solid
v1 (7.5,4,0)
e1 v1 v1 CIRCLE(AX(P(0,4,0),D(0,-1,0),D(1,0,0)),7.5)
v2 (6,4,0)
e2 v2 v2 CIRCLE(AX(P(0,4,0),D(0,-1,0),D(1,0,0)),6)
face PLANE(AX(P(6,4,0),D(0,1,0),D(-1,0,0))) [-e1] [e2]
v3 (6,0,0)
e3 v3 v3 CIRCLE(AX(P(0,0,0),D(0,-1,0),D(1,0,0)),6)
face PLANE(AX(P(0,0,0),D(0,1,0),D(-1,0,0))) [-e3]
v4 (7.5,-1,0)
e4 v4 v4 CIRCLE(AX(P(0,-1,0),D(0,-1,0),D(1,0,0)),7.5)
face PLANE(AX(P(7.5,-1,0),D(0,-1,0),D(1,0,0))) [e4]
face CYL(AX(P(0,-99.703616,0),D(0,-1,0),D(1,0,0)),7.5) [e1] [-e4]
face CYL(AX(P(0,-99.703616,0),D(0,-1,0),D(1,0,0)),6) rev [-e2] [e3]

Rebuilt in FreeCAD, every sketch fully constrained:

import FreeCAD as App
import Part
import Sketcher


def add_polygon(sketch, points):
    """Adds a closed chain of lines whose ends are joined by coincident constraints."""
    first, n = sketch.GeometryCount, len(points)
    for a, b in zip(points, points[1:] + points[:1]):
        sketch.addGeometry(Part.LineSegment(App.Vector(*a, 0), App.Vector(*b, 0)), False)
    for i in range(n):
        sketch.addConstraint(Sketcher.Constraint("Coincident", first + i, 2, first + (i + 1) % n, 1))

doc = App.newDocument("Part")
body = doc.addObject("PartDesign::Body", "Body")

# Sketch on XY plane
sketch1 = body.newObject("Sketcher::SketchObject", "Sketch")
sketch1.AttachmentSupport = (doc.getObject("XY_Plane"), [""])
sketch1.MapMode = "FlatFace"
add_polygon(sketch1, [(6, 0), (0, 0), (0, -1), (7.5, -1), (7.5, 4), (6, 4)])  # lines 0-5
sketch1.addConstraint([
    Sketcher.Constraint("Horizontal", 0),
    Sketcher.Constraint("Vertical", 1),
    Sketcher.Constraint("Horizontal", 2),
    Sketcher.Constraint("Vertical", 3),
    Sketcher.Constraint("Horizontal", 4),
    Sketcher.Constraint("Vertical", 5),
    Sketcher.Constraint("Coincident", 0, 2, -1, 1),
    Sketcher.Constraint("DistanceX", 0, 2, 0, 1, 6.0),
    Sketcher.Constraint("DistanceY", 1, 2, 1, 1, 1.0),
    Sketcher.Constraint("DistanceY", 3, 1, 3, 2, 5.0),
    Sketcher.Constraint("DistanceX", 2, 1, 2, 2, 7.5),
])
revolution = body.newObject("PartDesign::Revolution", "Revolution")
revolution.Profile = sketch1
revolution.ReferenceAxis = (sketch1, ["V_Axis"])
revolution.Angle = 360

doc.recompute()
